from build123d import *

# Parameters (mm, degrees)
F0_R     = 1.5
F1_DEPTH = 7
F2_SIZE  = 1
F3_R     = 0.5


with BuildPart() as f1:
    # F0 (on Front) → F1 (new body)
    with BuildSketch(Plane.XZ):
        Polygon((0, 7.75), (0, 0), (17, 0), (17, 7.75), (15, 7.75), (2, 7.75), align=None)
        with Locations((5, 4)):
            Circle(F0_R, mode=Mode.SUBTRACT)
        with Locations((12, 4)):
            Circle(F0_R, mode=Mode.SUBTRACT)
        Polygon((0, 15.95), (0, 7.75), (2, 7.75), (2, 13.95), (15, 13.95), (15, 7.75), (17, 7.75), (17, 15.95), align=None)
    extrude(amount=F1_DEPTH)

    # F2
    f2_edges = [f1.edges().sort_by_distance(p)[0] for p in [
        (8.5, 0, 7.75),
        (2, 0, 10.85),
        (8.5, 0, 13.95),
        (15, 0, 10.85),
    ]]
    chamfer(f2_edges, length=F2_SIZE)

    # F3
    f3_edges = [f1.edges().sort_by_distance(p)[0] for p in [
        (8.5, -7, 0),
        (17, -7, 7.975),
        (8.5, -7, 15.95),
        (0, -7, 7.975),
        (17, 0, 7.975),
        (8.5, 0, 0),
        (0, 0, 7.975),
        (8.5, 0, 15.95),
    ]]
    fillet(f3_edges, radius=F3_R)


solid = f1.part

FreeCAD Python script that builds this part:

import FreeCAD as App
import Part
import Sketcher


def edges_at(feature, points):
    """Names of the edges that pass closest to the given points."""
    edges = feature.Shape.Edges
    near = lambda p: min(range(len(edges)), key=lambda i: edges[i].distToShape(Part.Vertex(*p))[0])
    return sorted({f"Edge{near(p) + 1}" for p in points})

doc = App.newDocument("Part")
body = doc.addObject("PartDesign::Body", "Body")

# Sketch on XZ plane
sketch1 = body.newObject("Sketcher::SketchObject", "Sketch")
sketch1.AttachmentSupport = (doc.getObject("XZ_Plane"), [""])
sketch1.MapMode = "FlatFace"
sketch1.addGeometry([
    Part.LineSegment(App.Vector(0, 0, 0), App.Vector(17, 0, 0)),  # 0
    Part.LineSegment(App.Vector(17, 0, 0), App.Vector(17, 15.9, 0)),  # 1
    Part.LineSegment(App.Vector(17, 15.9, 0), App.Vector(0, 15.9, 0)),  # 2
    Part.LineSegment(App.Vector(0, 15.9, 0), App.Vector(0, 0, 0)),  # 3
    Part.LineSegment(App.Vector(15, 7.8, 0), App.Vector(2, 7.8, 0)),  # 4
    Part.LineSegment(App.Vector(2, 7.8, 0), App.Vector(2, 13.9, 0)),  # 5
    Part.LineSegment(App.Vector(2, 13.9, 0), App.Vector(15, 13.9, 0)),  # 6
    Part.LineSegment(App.Vector(15, 13.9, 0), App.Vector(15, 7.8, 0)),  # 7
    Part.Circle(App.Vector(5, 4, 0), App.Vector(0, 0, 1), 1.5),  # 8
    Part.Circle(App.Vector(12, 4, 0), App.Vector(0, 0, 1), 1.5),  # 9
], False)
sketch1.addConstraint([
    Sketcher.Constraint("Coincident", 0, 2, 1, 1),
    Sketcher.Constraint("Coincident", 1, 2, 2, 1),
    Sketcher.Constraint("Coincident", 2, 2, 3, 1),
    Sketcher.Constraint("Coincident", 3, 2, 0, 1),
    Sketcher.Constraint("Coincident", 4, 2, 5, 1),
    Sketcher.Constraint("Coincident", 5, 2, 6, 1),
    Sketcher.Constraint("Coincident", 6, 2, 7, 1),
    Sketcher.Constraint("Coincident", 7, 2, 4, 1),
    Sketcher.Constraint("Horizontal", 0),
    Sketcher.Constraint("Vertical", 1),
    Sketcher.Constraint("Horizontal", 2),
    Sketcher.Constraint("Vertical", 3),
    Sketcher.Constraint("Horizontal", 4),
    Sketcher.Constraint("Vertical", 5),
    Sketcher.Constraint("Horizontal", 6),
    Sketcher.Constraint("Vertical", 7),
    Sketcher.Constraint("Coincident", 3, 2, -1, 1),
    Sketcher.Constraint("Equal", 8, 9),
    Sketcher.Constraint("Horizontal", 8, 3, 9, 3),
    Sketcher.Constraint("Diameter", 8, 3.0),
    Sketcher.Constraint("DistanceX", 0, 1, 0, 2, 17.0),
    Sketcher.Constraint("DistanceX", 4, 2, 4, 1, 13.0),
    Sketcher.Constraint("DistanceY", 5, 1, 5, 2, 6.2),
    Sketcher.Constraint("DistanceX", -1, 1, 8, 3, 5.0),
    Sketcher.Constraint("DistanceY", -1, 1, 8, 3, 4.0),
    Sketcher.Constraint("DistanceX", -1, 1, 9, 3, 12.0),
    Sketcher.Constraint("DistanceX", -1, 1, 4, 2, 2.0),
    Sketcher.Constraint("DistanceY", 5, 2, 2, 2, 2.0),
    Sketcher.Constraint("DistanceY", 1, 1, 1, 2, 15.95),
])
pad1 = body.newObject("PartDesign::Pad", "Pad")
pad1.Profile = sketch1
pad1.Length = 7
doc.recompute()

chamfer = body.newObject("PartDesign::Chamfer", "Chamfer")
chamfer.Base = (pad1, edges_at(pad1, [
    (8.5, 0, 7.75),
    (2, 0, 10.85),
    (8.5, 0, 13.95),
    (15, 0, 10.85),
]))
chamfer.Size = 1
doc.recompute()

fillet = body.newObject("PartDesign::Fillet", "Fillet")
fillet.Base = (chamfer, edges_at(chamfer, [
    (8.5, -7, 0),
    (17, -7, 7.975),
    (8.5, -7, 15.95),
    (0, -7, 7.975),
    (17, 0, 7.975),
    (8.5, 0, 0),
    (0, 0, 7.975),
    (8.5, 0, 15.95),
]))
fillet.Radius = 0.5

doc.recompute()
